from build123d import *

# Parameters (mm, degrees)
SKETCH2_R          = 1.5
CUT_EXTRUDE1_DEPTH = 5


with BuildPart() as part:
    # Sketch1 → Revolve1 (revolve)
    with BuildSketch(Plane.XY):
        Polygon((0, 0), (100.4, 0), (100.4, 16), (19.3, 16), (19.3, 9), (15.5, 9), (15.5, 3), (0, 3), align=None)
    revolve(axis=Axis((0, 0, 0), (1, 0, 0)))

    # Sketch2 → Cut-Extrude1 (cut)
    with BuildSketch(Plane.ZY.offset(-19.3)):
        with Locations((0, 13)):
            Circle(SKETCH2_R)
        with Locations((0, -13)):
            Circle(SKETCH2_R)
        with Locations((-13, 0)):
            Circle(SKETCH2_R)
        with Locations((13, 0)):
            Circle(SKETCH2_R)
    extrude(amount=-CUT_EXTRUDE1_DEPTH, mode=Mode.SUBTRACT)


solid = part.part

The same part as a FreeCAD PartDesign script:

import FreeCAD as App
import Part
import Sketcher

V = App.Vector
Q = App.Units.Quantity


def add_polygon(sketch, points):
    """Adds a closed chain of lines whose ends are joined by coincident constraints."""
    first, n = sketch.GeometryCount, len(points)
    for a, b in zip(points, points[1:] + points[:1]):
        sketch.addGeometry(Part.LineSegment(App.Vector(*a, 0), App.Vector(*b, 0)), False)
    for i in range(n):
        sketch.addConstraint(Sketcher.Constraint("Coincident", first + i, 2, first + (i + 1) % n, 1))

doc = App.newDocument("Part")
body = doc.addObject("PartDesign::Body", "Body")

sketch1 = doc.addObject("Sketcher::SketchObject", "Sketch")
body.addObject(sketch1)
sketch1.AttachmentSupport = (doc.XY_Plane, [""])
sketch1.MapMode = "FlatFace"
add_polygon(sketch1, [(0, 0), (100.4, 0), (100.4, 16), (19.3, 16), (19.3, 9), (15.5, 9), (15.5, 3), (0, 3)])
sketch1.addConstraint([
    Sketcher.Constraint("Horizontal", 0),
    Sketcher.Constraint("Vertical", 1),
    Sketcher.Constraint("Horizontal", 2),
    Sketcher.Constraint("Vertical", 3),
    Sketcher.Constraint("Horizontal", 4),
    Sketcher.Constraint("Vertical", 5),
    Sketcher.Constraint("Horizontal", 6),
    Sketcher.Constraint("Vertical", 7),
    Sketcher.Constraint("Coincident", 7, 2, -1, 1),
    Sketcher.Constraint("DistanceY", 1, 1, 1, 2, Q("16 mm")),
    Sketcher.Constraint("DistanceY", 3, 2, 3, 1, Q("7 mm")),
    Sketcher.Constraint("DistanceY", 5, 2, 5, 1, Q("6 mm")),
    Sketcher.Constraint("DistanceX", 0, 1, 0, 2, Q("100.4 mm")),
    Sketcher.Constraint("DistanceX", 2, 2, 2, 1, Q("81.1 mm")),
    Sketcher.Constraint("DistanceX", 4, 2, 4, 1, Q("3.8 mm")),
])
revolution = doc.addObject("PartDesign::Revolution", "Revolution")
body.addObject(revolution)
revolution.Profile = sketch1
revolution.ReferenceAxis = (sketch1, ["H_Axis"])
revolution.Angle = 360

sketch2 = doc.addObject("Sketcher::SketchObject", "Sketch001")
body.addObject(sketch2)
sketch2.AttachmentSupport = (doc.YZ_Plane, [""])
sketch2.MapMode = "FlatFace"
sketch2.AttachmentOffset = App.Placement(V(0, 0, 19.3), App.Rotation())
sketch2.addGeometry([
    Part.Circle(V(13, 0, 0), V(0, 0, 1), 1.5),
    Part.Circle(V(-13, 0, 0), V(0, 0, 1), 1.5),
    Part.Circle(V(0, -13, 0), V(0, 0, 1), 1.5),
    Part.Circle(V(0, 13, 0), V(0, 0, 1), 1.5),
], False)
sketch2.addConstraint([
    Sketcher.Constraint("Equal", 0, 1),
    Sketcher.Constraint("Equal", 1, 2),
    Sketcher.Constraint("Equal", 2, 3),
    Sketcher.Constraint("Symmetric", 0, 3, 1, 3, -1, 1),
    Sketcher.Constraint("Symmetric", 2, 3, 3, 3, -1, 1),
    Sketcher.Constraint("PointOnObject", 0, 3, -1),
    Sketcher.Constraint("PointOnObject", 2, 3, -2),
    Sketcher.Constraint("Diameter", 0, Q("3 mm")),
    Sketcher.Constraint("DistanceX", -1, 1, 0, 3, Q("13 mm")),
    Sketcher.Constraint("DistanceY", 2, 3, -1, 1, Q("13 mm")),
])
pocket1 = doc.addObject("PartDesign::Pocket", "Pocket")
body.addObject(pocket1)
pocket1.Profile = sketch2
pocket1.Length = 5
pocket1.Reversed = True

doc.recompute()
